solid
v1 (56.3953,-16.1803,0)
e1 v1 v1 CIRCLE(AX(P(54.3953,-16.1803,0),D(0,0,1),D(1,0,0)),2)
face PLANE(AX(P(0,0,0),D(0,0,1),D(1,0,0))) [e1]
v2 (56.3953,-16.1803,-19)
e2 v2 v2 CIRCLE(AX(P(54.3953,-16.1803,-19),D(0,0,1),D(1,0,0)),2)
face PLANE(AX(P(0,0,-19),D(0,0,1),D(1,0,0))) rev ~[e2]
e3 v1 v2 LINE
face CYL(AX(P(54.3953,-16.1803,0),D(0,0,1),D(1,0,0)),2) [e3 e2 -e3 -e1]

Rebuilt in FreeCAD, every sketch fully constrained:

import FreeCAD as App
import Part
import Sketcher
from FreeCAD import Vector
Q = App.Units.Quantity

doc = App.newDocument("Part")
body = doc.addObject("PartDesign::Body", "Body")

# Sketch on XY plane
sketch1 = doc.addObject("Sketcher::SketchObject", "Sketch")
body.addObject(sketch1)
sketch1.AttachmentSupport = (doc.XY_Plane, [""])
sketch1.MapMode = "FlatFace"
sketch1.addGeometry(Part.Circle(Vector(54.3953, -16.1803, 0), Vector(0, 0, 1), 2), False)
sketch1.addConstraint([
    Sketcher.Constraint("Diameter", 0, Q("4 mm")),
    Sketcher.Constraint("DistanceX", -1, 1, 0, 3, Q("54.3953 mm")),
    Sketcher.Constraint("DistanceY", 0, 3, -1, 1, Q("16.1803 mm")),
])
pad1 = doc.addObject("PartDesign::Pad", "Pad")
body.addObject(pad1)
pad1.Profile = sketch1
pad1.Length = 19
pad1.Reversed = True

doc.recompute()
